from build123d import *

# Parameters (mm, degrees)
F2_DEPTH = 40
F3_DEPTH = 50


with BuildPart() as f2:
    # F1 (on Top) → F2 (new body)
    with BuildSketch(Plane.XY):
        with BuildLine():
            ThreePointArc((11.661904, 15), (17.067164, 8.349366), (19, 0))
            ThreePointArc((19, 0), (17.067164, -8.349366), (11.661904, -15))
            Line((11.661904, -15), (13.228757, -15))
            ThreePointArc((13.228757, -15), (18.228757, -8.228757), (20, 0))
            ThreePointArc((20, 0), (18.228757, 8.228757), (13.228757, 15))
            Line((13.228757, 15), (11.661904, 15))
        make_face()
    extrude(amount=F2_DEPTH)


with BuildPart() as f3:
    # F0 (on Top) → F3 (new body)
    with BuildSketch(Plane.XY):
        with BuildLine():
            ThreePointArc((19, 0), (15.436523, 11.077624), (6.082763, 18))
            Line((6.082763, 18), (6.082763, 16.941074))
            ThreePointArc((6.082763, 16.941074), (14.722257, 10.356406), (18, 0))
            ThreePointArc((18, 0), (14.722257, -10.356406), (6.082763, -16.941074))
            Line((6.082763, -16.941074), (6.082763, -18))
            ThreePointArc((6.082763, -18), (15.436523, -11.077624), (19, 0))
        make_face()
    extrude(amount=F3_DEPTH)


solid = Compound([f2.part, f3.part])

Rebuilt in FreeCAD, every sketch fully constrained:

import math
import FreeCAD as App
import Part
import Sketcher
Q = App.Units.Quantity

doc = App.newDocument("Part")
body = doc.addObject("PartDesign::Body", "Body")

# Sketch on XY plane
sketch1 = body.newObject("Sketcher::SketchObject", "Sketch")
sketch1.AttachmentSupport = (doc.getObject("XY_Plane"), [""])
sketch1.MapMode = "FlatFace"
sketch1.addGeometry(Part.ArcOfCircle(Part.Circle(App.Vector(-0.000001, 0, 0), App.Vector(0, 0, 1), 19.000001), math.radians(0.000001), math.radians(52.136352)), False)
sketch1.addGeometry(Part.ArcOfCircle(Part.Circle(App.Vector(-0.000001, 0, 0), App.Vector(0, 0, 1), 19.000001), math.radians(-52.136352), math.radians(-0.000001)), False)
sketch1.addGeometry(Part.LineSegment(App.Vector(11.661904, -15, 0), App.Vector(13.228757, -15, 0)), False)
sketch1.addGeometry(Part.ArcOfCircle(Part.Circle(App.Vector(0.000004, -0.000002, 0), App.Vector(0, 0, 1), 19.999996), math.radians(-48.590382), math.radians(0.000007)), False)
sketch1.addGeometry(Part.ArcOfCircle(Part.Circle(App.Vector(0.000004, 0.000002, 0), App.Vector(0, 0, 1), 19.999996), math.radians(-0.000007), math.radians(48.590382)), False)
sketch1.addGeometry(Part.LineSegment(App.Vector(13.228757, 15, 0), App.Vector(11.661904, 15, 0)), False)
sketch1.addConstraint(Sketcher.Constraint("Tangent", 0, 1, 1, 2))
sketch1.addConstraint(Sketcher.Constraint("Coincident", 1, 1, 2, 1))
sketch1.addConstraint(Sketcher.Constraint("Coincident", 2, 2, 3, 1))
sketch1.addConstraint(Sketcher.Constraint("Tangent", 3, 2, 4, 1))
sketch1.addConstraint(Sketcher.Constraint("Coincident", 4, 2, 5, 1))
sketch1.addConstraint(Sketcher.Constraint("Coincident", 5, 2, 0, 2))
sketch1.addConstraint(Sketcher.Constraint("Horizontal", 2))
sketch1.addConstraint(Sketcher.Constraint("Horizontal", 5))
sketch1.addConstraint(Sketcher.Constraint("Coincident", 0, 3, -1, 1))
sketch1.addConstraint(Sketcher.Constraint("Coincident", 3, 3, -1, 1))
sketch1.addConstraint(Sketcher.Constraint("Equal", 0, 1))
sketch1.addConstraint(Sketcher.Constraint("Equal", 3, 4))
sketch1.addConstraint(Sketcher.Constraint("PointOnObject", 0, 1, -1))
sketch1.addConstraint(Sketcher.Constraint("PointOnObject", 3, 2, -1))
sketch1.addConstraint(Sketcher.Constraint("Vertical", 2, 2, 4, 2))
sketch1.addConstraint(Sketcher.Constraint("Radius", 0, Q("19.000001 mm")))
sketch1.addConstraint(Sketcher.Constraint("DistanceY", 1, 1, -1, 1, Q("15 mm")))
sketch1.addConstraint(Sketcher.Constraint("DistanceX", -1, 1, 3, 2, Q("20 mm")))
pad1 = body.newObject("PartDesign::Pad", "Pad")
pad1.Profile = sketch1
pad1.Length = 40
body2 = doc.addObject("PartDesign::Body", "Body001")

# Sketch on XY plane
sketch2 = body2.newObject("Sketcher::SketchObject", "Sketch001")
sketch2.AttachmentSupport = (doc.getObject("XY_Plane001"), [""])
sketch2.MapMode = "FlatFace"
sketch2.addGeometry(Part.ArcOfCircle(Part.Circle(App.Vector(-0.000001, 0, 0), App.Vector(0, 0, 1), 19.000001), math.radians(0.000001), math.radians(71.328279)), False)
sketch2.addGeometry(Part.LineSegment(App.Vector(6.082763, 18, 0), App.Vector(6.082763, 16.941074, 0)), False)
sketch2.addGeometry(Part.ArcOfCircle(Part.Circle(App.Vector(0, 0, 0), App.Vector(0, 0, 1), 18), math.radians(0.000001), math.radians(70.249114)), False)
sketch2.addGeometry(Part.ArcOfCircle(Part.Circle(App.Vector(0, 0, 0), App.Vector(0, 0, 1), 18), math.radians(-70.249114), math.radians(-0.000001)), False)
sketch2.addGeometry(Part.LineSegment(App.Vector(6.082763, -16.941074, 0), App.Vector(6.082763, -18, 0)), False)
sketch2.addGeometry(Part.ArcOfCircle(Part.Circle(App.Vector(-0.000001, 0, 0), App.Vector(0, 0, 1), 19.000001), math.radians(-71.328279), math.radians(-0.000001)), False)
sketch2.addConstraint(Sketcher.Constraint("Coincident", 0, 2, 1, 1))
sketch2.addConstraint(Sketcher.Constraint("Coincident", 1, 2, 2, 2))
sketch2.addConstraint(Sketcher.Constraint("Tangent", 2, 1, 3, 2))
sketch2.addConstraint(Sketcher.Constraint("Coincident", 3, 1, 4, 1))
sketch2.addConstraint(Sketcher.Constraint("Coincident", 4, 2, 5, 1))
sketch2.addConstraint(Sketcher.Constraint("Tangent", 5, 2, 0, 1))
sketch2.addConstraint(Sketcher.Constraint("Vertical", 1))
sketch2.addConstraint(Sketcher.Constraint("Vertical", 4))
sketch2.addConstraint(Sketcher.Constraint("Coincident", 0, 3, -1, 1))
sketch2.addConstraint(Sketcher.Constraint("Coincident", 2, 3, -1, 1))
sketch2.addConstraint(Sketcher.Constraint("Equal", 2, 3))
sketch2.addConstraint(Sketcher.Constraint("Equal", 0, 5))
sketch2.addConstraint(Sketcher.Constraint("PointOnObject", 2, 1, -1))
sketch2.addConstraint(Sketcher.Constraint("PointOnObject", 5, 2, -1))
sketch2.addConstraint(Sketcher.Constraint("Vertical", 1, 2, 3, 1))
sketch2.addConstraint(Sketcher.Constraint("Radius", 0, Q("19.000001 mm")))
sketch2.addConstraint(Sketcher.Constraint("Radius", 2, Q("18 mm")))
sketch2.addConstraint(Sketcher.Constraint("DistanceY", -1, 1, 0, 2, Q("18 mm")))
pad2 = body2.newObject("PartDesign::Pad", "Pad001")
pad2.Profile = sketch2
pad2.Length = 50

doc.recompute()
